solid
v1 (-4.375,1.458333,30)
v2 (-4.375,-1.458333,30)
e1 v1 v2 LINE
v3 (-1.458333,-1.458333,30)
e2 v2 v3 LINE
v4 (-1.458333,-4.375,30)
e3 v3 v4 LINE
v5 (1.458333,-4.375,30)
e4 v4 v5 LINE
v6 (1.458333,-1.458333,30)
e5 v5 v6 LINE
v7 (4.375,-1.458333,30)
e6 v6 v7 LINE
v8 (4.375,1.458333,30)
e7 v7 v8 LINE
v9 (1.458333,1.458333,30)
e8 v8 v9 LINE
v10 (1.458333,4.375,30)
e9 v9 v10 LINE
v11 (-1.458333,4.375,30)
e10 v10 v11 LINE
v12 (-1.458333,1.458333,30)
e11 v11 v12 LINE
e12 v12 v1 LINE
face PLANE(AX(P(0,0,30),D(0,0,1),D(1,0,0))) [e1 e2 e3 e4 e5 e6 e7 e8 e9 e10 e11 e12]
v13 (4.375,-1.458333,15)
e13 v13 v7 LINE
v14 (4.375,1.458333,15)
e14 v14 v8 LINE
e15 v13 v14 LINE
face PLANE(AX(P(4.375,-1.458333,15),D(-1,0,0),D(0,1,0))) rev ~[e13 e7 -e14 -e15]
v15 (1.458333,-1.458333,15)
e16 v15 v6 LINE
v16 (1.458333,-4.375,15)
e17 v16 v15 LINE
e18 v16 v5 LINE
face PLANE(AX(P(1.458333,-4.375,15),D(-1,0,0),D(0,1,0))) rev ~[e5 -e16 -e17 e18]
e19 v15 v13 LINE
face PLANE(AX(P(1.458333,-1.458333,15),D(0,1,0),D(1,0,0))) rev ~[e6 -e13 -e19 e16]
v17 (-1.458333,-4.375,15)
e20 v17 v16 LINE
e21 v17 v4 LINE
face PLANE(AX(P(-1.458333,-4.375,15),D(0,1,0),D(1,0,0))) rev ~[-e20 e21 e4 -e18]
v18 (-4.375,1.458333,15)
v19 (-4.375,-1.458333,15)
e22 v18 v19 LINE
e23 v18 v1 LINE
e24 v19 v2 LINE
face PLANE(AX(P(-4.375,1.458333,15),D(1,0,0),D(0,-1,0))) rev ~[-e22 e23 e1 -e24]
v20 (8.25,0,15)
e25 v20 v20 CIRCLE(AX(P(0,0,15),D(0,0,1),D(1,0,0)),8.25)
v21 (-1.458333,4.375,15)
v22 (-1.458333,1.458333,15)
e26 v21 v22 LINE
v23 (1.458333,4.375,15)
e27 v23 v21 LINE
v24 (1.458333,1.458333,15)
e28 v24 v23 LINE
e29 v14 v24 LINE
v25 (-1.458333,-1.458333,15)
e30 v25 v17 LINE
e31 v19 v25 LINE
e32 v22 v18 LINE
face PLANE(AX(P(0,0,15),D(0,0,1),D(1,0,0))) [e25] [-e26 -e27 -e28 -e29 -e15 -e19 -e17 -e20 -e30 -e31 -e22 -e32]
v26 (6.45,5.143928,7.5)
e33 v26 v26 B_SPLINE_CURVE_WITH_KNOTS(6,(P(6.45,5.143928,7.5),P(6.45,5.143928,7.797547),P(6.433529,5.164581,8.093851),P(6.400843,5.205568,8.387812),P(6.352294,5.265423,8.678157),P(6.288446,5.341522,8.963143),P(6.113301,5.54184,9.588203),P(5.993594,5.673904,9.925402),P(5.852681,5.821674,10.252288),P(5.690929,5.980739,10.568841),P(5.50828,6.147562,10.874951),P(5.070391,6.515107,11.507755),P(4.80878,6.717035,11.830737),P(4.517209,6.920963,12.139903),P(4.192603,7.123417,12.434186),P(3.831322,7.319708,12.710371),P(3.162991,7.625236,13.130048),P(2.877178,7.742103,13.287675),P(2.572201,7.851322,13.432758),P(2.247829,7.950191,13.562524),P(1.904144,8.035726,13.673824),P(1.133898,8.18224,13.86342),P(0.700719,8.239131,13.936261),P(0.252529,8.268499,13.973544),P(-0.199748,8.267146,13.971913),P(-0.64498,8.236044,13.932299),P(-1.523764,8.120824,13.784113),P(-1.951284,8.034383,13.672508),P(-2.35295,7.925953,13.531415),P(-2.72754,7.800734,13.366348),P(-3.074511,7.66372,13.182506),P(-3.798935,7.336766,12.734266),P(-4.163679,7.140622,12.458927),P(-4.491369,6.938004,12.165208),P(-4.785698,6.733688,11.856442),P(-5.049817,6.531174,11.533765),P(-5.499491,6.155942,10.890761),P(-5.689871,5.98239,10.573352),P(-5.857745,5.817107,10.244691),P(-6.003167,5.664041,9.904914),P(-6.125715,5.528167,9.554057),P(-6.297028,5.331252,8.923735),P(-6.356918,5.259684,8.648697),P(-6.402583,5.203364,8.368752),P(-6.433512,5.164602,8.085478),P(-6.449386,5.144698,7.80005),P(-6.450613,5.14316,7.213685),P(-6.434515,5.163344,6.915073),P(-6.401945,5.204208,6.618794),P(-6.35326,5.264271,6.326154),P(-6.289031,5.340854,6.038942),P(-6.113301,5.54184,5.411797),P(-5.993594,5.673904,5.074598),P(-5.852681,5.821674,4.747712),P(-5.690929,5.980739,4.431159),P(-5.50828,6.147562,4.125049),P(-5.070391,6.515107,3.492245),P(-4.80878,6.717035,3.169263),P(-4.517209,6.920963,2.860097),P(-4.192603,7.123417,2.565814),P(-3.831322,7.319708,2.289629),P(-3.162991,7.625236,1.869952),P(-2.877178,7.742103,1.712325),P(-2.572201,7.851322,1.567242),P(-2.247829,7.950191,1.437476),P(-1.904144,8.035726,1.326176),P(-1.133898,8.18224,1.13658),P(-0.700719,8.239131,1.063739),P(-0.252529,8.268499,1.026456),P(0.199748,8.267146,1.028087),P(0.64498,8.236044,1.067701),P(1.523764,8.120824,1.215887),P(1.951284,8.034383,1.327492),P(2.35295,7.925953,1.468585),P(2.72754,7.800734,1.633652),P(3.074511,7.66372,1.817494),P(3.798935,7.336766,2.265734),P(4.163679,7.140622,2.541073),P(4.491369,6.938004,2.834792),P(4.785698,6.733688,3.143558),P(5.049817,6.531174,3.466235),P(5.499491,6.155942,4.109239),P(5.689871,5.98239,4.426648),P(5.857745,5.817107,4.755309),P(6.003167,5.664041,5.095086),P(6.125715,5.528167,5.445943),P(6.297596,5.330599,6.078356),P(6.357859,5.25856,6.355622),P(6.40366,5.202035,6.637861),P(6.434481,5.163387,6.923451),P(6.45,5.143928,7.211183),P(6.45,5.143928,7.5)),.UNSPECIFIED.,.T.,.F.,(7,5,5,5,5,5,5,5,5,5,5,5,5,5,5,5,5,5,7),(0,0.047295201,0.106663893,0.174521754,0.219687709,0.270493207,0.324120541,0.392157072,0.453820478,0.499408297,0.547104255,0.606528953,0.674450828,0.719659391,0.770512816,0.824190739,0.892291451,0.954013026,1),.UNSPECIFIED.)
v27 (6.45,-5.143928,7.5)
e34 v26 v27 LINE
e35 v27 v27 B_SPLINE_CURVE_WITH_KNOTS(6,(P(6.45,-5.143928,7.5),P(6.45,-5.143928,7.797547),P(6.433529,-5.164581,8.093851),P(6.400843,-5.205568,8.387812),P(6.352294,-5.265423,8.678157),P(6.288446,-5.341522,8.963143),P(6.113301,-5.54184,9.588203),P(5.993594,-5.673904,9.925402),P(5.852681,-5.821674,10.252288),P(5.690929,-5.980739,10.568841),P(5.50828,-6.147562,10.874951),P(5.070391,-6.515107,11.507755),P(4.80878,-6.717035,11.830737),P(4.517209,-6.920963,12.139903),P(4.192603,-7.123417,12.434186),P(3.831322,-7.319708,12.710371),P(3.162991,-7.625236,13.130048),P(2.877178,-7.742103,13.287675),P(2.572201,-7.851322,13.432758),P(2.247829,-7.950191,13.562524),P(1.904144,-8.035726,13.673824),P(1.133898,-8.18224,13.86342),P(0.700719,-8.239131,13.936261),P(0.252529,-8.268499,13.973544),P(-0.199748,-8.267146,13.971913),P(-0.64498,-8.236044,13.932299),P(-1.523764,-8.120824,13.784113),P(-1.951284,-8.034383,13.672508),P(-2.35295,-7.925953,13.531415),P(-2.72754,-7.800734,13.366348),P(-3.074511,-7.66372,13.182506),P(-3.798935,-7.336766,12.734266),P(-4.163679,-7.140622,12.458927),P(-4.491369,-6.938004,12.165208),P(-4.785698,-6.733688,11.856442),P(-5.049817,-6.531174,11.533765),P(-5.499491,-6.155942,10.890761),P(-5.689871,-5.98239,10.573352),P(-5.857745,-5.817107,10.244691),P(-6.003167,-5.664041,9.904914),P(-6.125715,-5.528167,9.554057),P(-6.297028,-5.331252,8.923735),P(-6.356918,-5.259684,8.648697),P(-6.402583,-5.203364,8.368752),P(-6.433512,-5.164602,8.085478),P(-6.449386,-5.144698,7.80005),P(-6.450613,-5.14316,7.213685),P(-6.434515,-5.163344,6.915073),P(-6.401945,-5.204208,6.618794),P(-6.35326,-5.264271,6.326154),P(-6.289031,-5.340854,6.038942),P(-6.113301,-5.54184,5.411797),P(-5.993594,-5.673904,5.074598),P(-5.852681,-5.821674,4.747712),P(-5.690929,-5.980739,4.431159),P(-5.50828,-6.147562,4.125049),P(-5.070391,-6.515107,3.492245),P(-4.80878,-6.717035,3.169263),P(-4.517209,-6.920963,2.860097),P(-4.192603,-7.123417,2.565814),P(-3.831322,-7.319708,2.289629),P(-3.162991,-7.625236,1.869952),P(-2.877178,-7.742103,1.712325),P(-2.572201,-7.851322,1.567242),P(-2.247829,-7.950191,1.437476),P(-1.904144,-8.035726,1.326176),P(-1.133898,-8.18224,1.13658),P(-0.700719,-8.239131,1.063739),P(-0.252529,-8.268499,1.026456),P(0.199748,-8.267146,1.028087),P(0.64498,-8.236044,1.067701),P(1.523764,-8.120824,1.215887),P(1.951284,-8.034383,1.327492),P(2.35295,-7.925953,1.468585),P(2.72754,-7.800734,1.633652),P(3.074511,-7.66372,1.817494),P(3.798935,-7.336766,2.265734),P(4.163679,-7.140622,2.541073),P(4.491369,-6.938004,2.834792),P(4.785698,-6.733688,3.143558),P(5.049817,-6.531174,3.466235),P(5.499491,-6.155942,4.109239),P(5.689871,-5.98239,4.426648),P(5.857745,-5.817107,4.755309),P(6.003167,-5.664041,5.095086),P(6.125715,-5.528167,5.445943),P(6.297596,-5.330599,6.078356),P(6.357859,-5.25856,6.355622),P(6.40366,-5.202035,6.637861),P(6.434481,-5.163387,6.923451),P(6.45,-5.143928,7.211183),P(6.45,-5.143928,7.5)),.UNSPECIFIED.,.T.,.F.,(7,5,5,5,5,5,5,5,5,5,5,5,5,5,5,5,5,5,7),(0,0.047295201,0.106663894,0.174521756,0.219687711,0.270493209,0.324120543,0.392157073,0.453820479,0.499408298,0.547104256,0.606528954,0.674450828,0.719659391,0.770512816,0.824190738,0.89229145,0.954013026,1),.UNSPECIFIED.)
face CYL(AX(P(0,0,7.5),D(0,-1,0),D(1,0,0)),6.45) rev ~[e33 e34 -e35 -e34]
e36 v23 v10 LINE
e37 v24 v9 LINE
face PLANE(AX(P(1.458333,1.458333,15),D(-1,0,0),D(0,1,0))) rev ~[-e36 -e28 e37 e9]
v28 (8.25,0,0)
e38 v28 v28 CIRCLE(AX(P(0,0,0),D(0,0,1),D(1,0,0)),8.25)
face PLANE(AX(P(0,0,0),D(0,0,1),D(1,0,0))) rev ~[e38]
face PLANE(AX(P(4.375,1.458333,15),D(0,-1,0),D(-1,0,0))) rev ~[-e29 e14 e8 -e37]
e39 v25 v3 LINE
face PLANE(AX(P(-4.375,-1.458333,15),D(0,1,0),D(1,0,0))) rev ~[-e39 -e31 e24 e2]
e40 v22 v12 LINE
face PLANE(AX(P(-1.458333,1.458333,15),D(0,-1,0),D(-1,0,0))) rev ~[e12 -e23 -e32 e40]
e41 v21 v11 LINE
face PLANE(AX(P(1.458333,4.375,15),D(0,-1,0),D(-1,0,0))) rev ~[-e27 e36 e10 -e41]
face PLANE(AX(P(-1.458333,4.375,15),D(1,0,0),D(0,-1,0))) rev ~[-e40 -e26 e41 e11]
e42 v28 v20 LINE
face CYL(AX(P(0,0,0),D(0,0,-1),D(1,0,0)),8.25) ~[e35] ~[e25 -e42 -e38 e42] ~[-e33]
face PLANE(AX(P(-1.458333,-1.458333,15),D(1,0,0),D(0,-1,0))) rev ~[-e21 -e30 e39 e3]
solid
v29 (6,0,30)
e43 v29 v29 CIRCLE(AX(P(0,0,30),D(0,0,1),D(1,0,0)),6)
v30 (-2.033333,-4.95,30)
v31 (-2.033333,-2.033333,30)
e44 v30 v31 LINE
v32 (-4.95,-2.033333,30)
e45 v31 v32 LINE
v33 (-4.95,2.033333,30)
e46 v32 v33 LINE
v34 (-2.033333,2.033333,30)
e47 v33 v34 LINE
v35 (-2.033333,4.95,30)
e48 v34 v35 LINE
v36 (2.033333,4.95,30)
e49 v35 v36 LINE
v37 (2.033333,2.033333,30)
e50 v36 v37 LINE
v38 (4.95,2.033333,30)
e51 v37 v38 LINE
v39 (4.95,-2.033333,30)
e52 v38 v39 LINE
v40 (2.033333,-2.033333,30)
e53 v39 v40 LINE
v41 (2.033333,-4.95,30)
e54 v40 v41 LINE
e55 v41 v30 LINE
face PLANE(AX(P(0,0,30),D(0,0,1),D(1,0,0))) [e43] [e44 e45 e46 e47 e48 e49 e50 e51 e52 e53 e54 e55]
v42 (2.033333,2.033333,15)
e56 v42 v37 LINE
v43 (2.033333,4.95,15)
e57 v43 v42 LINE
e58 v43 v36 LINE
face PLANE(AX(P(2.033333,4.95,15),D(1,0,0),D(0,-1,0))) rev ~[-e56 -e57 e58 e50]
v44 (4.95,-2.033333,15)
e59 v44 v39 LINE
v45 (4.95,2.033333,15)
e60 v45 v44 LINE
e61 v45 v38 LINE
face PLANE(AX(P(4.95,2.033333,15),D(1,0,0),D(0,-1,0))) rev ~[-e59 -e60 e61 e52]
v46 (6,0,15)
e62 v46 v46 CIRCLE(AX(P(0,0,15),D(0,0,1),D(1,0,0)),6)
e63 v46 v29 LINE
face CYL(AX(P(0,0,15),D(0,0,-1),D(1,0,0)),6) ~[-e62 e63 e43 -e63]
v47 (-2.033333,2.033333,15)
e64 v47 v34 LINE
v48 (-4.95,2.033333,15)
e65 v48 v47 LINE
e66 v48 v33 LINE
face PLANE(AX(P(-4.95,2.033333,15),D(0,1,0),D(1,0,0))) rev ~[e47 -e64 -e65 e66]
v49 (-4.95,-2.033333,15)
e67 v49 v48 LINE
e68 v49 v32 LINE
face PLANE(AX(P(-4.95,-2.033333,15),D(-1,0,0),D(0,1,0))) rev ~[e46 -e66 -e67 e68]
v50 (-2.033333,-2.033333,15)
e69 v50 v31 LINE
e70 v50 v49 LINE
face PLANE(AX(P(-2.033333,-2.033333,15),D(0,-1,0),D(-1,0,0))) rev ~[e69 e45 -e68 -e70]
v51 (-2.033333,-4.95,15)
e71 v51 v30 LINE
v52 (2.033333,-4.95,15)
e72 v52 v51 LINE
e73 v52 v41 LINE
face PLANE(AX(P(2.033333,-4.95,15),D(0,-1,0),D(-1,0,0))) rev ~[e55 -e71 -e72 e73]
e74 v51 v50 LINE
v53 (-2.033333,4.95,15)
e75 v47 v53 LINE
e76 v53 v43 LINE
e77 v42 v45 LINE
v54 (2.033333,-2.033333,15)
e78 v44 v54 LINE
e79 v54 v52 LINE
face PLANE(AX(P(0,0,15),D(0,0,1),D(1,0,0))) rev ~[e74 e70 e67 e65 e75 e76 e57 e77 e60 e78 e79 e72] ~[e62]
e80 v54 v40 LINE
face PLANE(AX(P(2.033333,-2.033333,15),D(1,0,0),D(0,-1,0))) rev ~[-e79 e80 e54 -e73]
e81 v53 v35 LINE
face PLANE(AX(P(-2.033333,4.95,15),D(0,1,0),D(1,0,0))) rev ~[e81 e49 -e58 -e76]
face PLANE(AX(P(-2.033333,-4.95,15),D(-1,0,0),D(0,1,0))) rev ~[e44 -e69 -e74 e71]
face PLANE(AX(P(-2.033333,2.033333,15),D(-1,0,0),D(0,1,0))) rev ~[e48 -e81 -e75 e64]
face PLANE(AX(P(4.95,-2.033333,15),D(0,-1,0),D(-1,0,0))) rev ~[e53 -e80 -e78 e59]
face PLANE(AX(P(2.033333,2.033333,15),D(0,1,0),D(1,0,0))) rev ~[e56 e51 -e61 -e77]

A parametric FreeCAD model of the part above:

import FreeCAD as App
import Part
import Sketcher

V = App.Vector
Q = App.Units.Quantity


def add_polygon(sketch, points):
    """Adds a closed chain of lines whose ends are joined by coincident constraints."""
    first, n = sketch.GeometryCount, len(points)
    for a, b in zip(points, points[1:] + points[:1]):
        sketch.addGeometry(Part.LineSegment(App.Vector(*a, 0), App.Vector(*b, 0)), False)
    for i in range(n):
        sketch.addConstraint(Sketcher.Constraint("Coincident", first + i, 2, first + (i + 1) % n, 1))

doc = App.newDocument("Part")
body = doc.addObject("PartDesign::Body", "Body")

# Sketch on XY plane
sketch1 = body.newObject("Sketcher::SketchObject", "Sketch")
sketch1.AttachmentSupport = (doc.getObject("XY_Plane"), [""])
sketch1.MapMode = "FlatFace"
sketch1.addGeometry(Part.Circle(V(0, 0, 0), V(0, 0, 1), 8), False)
sketch1.addConstraint([
    Sketcher.Constraint("Coincident", 0, 3, -1, 1),
    Sketcher.Constraint("Diameter", 0, Q("16.5 mm")),
])
pad1 = body.newObject("PartDesign::Pad", "Pad")
pad1.Profile = sketch1
pad1.Length = 15

# Sketch on XY plane
sketch2 = body.newObject("Sketcher::SketchObject", "Sketch001")
sketch2.AttachmentSupport = (doc.getObject("XY_Plane"), [""])
sketch2.MapMode = "FlatFace"
sketch2.AttachmentOffset = App.Placement(V(0, 0, 15), App.Rotation())
add_polygon(sketch2, [(1.5, 4.4), (-1.5, 4.4), (-1.5, 1.5), (-4.4, 1.5), (-4.4, -1.5), (-1.5, -1.5), (-1.5, -4.4), (1.5, -4.4), (1.5, -1.5), (4.4, -1.5), (4.4, 1.5), (1.5, 1.5)])  # lines 0-11
sketch2.addConstraint([
    Sketcher.Constraint("Horizontal", 0),
    Sketcher.Constraint("Vertical", 1),
    Sketcher.Constraint("Horizontal", 2),
    Sketcher.Constraint("Vertical", 3),
    Sketcher.Constraint("Horizontal", 4),
    Sketcher.Constraint("Vertical", 5),
    Sketcher.Constraint("Horizontal", 6),
    Sketcher.Constraint("Vertical", 7),
    Sketcher.Constraint("Horizontal", 8),
    Sketcher.Constraint("Vertical", 9),
    Sketcher.Constraint("Horizontal", 10),
    Sketcher.Constraint("Vertical", 11),
    Sketcher.Constraint("Symmetric", 0, 2, 6, 2, -1, 1),
    Sketcher.Constraint("Symmetric", 2, 2, 8, 2, -1, 1),
    Sketcher.Constraint("Symmetric", 4, 2, 10, 2, -1, 1),
    Sketcher.Constraint("Symmetric", 4, 2, 7, 2, -2),
    Sketcher.Constraint("Equal", 0, 2),
    Sketcher.Constraint("Equal", 10, 1),
    Sketcher.Constraint("Equal", 1, 3),
    Sketcher.Constraint("DistanceY", 5, 2, 0, 2, Q("8.75 mm")),
])
pad2 = body.newObject("PartDesign::Pad", "Pad001")
pad2.Profile = sketch2
pad2.Length = 15

# Sketch on XZ plane
sketch3 = body.newObject("Sketcher::SketchObject", "Sketch002")
sketch3.AttachmentSupport = (doc.getObject("XZ_Plane"), [""])
sketch3.MapMode = "FlatFace"
sketch3.addGeometry(Part.Circle(V(0, 8, 0), V(0, 0, 1), 6), False)
sketch3.addConstraint([
    Sketcher.Constraint("PointOnObject", 0, 3, -2),
    Sketcher.Constraint("Diameter", 0, Q("12.9 mm")),
    Sketcher.Constraint("DistanceY", -1, 1, 0, 3, Q("7.5 mm")),
])
pocket1 = body.newObject("PartDesign::Pocket", "Pocket")
pocket1.Profile = sketch3
pocket1.Length = 25
pocket1.Midplane = True
body2 = doc.addObject("PartDesign::Body", "Body001")

# Sketch on XY plane
sketch4 = body2.newObject("Sketcher::SketchObject", "Sketch003")
sketch4.AttachmentSupport = (doc.getObject("XY_Plane001"), [""])
sketch4.MapMode = "FlatFace"
sketch4.AttachmentOffset = App.Placement(V(0, 0, 15), App.Rotation())
sketch4.addGeometry(Part.Circle(V(0, 0, 0), V(0, 0, 1), 6), False)  # 0
add_polygon(sketch4, [(-5, 2), (-2, 2), (-2, 5), (2, 5), (2, 2), (5, 2), (5, -2), (2, -2), (2, -5), (-2, -5), (-2, -2), (-5, -2)])  # lines 1-12
sketch4.addConstraint([
    Sketcher.Constraint("Horizontal", 1),
    Sketcher.Constraint("Vertical", 2),
    Sketcher.Constraint("Horizontal", 3),
    Sketcher.Constraint("Vertical", 4),
    Sketcher.Constraint("Horizontal", 5),
    Sketcher.Constraint("Vertical", 6),
    Sketcher.Constraint("Horizontal", 7),
    Sketcher.Constraint("Vertical", 8),
    Sketcher.Constraint("Horizontal", 9),
    Sketcher.Constraint("Vertical", 10),
    Sketcher.Constraint("Horizontal", 11),
    Sketcher.Constraint("Vertical", 12),
    Sketcher.Constraint("Coincident", 0, 3, -1, 1),
    Sketcher.Constraint("Symmetric", 1, 2, 7, 2, -1, 1),
    Sketcher.Constraint("Symmetric", 3, 2, 9, 2, -1, 1),
    Sketcher.Constraint("Symmetric", 5, 2, 11, 2, -1, 1),
    Sketcher.Constraint("Symmetric", 1, 2, 4, 2, -2),
    Sketcher.Constraint("Equal", 11, 2),
    Sketcher.Constraint("Equal", 9, 6),
    Sketcher.Constraint("Diameter", 0, Q("12 mm")),
    Sketcher.Constraint("DistanceY", -1, 1, 2, 2, Q("4.95 mm")),
    Sketcher.Constraint("DistanceX", 1, 1, 1, 2, Q("2.916667 mm")),
])
pad3 = body2.newObject("PartDesign::Pad", "Pad002")
pad3.Profile = sketch4
pad3.Length = 15

doc.recompute()
